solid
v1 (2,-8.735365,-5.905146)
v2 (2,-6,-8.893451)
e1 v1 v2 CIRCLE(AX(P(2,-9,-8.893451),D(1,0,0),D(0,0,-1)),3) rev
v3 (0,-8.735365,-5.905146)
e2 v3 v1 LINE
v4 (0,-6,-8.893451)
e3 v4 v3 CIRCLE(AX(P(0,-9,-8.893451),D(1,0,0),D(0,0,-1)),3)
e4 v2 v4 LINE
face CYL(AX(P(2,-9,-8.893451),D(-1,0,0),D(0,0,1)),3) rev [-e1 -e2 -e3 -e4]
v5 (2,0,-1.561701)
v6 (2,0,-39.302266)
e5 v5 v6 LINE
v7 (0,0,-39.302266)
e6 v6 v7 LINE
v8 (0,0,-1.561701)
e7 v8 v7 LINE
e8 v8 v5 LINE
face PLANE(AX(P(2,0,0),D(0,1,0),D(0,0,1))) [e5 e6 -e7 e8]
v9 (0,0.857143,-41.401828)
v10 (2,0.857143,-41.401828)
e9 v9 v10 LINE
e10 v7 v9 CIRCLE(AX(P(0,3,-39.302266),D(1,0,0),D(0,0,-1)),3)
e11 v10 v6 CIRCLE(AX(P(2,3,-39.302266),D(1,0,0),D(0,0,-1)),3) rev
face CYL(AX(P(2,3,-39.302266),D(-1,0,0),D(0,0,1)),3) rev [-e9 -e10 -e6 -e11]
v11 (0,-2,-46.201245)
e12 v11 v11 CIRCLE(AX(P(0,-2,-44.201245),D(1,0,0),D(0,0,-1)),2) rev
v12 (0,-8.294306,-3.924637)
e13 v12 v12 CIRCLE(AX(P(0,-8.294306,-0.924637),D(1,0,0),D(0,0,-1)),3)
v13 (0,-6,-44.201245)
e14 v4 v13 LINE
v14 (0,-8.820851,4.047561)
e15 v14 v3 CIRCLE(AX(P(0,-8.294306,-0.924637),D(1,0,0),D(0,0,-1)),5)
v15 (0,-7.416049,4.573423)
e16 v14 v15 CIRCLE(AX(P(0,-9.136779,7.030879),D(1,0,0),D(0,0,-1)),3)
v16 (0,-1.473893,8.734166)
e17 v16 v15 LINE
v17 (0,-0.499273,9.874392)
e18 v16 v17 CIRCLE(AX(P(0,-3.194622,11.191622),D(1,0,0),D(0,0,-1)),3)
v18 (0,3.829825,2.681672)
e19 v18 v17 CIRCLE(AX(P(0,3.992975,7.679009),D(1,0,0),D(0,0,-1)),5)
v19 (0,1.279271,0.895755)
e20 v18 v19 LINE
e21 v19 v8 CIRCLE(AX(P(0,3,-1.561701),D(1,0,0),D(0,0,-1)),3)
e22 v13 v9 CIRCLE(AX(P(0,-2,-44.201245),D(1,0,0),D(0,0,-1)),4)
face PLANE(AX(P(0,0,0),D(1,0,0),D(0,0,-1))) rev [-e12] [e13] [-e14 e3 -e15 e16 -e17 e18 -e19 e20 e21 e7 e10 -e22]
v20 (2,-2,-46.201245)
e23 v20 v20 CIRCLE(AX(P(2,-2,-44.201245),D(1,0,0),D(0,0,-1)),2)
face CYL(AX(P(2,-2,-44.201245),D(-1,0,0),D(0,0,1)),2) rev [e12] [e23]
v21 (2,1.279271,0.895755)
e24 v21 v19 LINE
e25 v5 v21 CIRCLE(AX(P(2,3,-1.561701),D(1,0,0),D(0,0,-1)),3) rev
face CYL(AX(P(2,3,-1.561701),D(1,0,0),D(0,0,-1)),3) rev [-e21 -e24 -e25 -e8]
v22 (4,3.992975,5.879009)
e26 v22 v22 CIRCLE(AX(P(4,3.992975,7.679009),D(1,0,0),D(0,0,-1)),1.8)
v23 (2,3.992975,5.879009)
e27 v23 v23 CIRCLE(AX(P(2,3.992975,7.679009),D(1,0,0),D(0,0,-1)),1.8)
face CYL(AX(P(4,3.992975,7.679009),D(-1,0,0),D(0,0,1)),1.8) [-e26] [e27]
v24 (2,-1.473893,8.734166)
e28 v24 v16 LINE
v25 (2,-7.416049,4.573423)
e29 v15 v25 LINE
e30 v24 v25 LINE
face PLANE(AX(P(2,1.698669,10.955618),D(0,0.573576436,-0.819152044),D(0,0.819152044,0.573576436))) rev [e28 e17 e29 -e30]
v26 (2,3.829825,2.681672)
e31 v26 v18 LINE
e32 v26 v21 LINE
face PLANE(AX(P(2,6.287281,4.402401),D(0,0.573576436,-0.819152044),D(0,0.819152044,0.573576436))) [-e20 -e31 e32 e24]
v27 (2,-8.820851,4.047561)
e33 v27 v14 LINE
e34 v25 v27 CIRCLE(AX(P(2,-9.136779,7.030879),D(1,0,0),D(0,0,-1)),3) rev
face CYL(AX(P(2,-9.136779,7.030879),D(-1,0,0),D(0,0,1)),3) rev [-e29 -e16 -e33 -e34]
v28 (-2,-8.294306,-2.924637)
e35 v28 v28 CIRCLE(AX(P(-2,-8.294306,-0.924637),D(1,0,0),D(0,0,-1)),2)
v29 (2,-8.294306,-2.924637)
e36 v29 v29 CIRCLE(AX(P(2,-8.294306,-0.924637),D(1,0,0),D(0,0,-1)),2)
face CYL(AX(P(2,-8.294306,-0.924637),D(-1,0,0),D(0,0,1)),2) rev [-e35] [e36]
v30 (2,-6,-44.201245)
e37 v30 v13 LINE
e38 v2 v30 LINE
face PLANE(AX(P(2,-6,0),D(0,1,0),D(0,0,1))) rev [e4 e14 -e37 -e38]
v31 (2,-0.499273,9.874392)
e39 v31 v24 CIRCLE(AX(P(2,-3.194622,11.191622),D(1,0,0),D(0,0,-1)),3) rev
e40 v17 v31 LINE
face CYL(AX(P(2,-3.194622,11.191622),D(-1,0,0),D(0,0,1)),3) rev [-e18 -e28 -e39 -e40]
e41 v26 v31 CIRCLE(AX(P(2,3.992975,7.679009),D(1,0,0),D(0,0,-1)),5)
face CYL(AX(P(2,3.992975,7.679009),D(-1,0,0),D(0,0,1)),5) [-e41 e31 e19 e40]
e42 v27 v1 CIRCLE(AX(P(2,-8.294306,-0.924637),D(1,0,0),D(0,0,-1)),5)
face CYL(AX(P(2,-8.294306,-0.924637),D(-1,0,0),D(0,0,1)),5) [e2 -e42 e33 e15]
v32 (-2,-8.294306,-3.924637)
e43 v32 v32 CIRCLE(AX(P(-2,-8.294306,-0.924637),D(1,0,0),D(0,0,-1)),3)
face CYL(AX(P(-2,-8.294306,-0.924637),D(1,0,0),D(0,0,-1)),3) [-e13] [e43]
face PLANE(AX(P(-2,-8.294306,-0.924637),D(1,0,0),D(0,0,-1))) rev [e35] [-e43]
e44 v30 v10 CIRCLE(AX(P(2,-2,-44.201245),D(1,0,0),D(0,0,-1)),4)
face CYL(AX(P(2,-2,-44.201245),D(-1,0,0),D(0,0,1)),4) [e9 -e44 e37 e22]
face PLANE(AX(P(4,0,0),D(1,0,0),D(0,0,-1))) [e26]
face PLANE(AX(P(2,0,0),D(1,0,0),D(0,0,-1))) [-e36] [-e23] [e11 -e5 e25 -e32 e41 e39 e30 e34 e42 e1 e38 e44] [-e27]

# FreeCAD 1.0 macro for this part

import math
import FreeCAD as App
import Part
import Sketcher
Q = App.Units.Quantity


def edges_at(feature, points):
    """Names of the edges that pass closest to the given points."""
    edges = feature.Shape.Edges
    near = lambda p: min(range(len(edges)), key=lambda i: edges[i].distToShape(Part.Vertex(*p))[0])
    return sorted({f"Edge{near(p) + 1}" for p in points})

doc = App.newDocument("Part")
body = doc.addObject("PartDesign::Body", "Body")

sketch1 = doc.addObject("Sketcher::SketchObject", "Sketch")
body.addObject(sketch1)
sketch1.AttachmentSupport = (doc.YZ_Plane, [""])
sketch1.MapMode = "FlatFace"
sketch1.addGeometry([
    Part.LineSegment(App.Vector(0, -40.74, 0), App.Vector(0, 0, 0)),
    Part.LineSegment(App.Vector(0, 0, 0), App.Vector(3.83, 2.68, 0)),
    Part.ArcOfCircle(Part.Circle(App.Vector(3.99, 7.68, 0), App.Vector(0, 0, 1), 5), math.radians(-91.87), math.radians(-90)),
    Part.ArcOfCircle(Part.Circle(App.Vector(3.99, 7.68, 0), App.Vector(0, 0, 1), 5), math.radians(-90), math.radians(162)),
    Part.LineSegment(App.Vector(-0.76, 9.23, 0), App.Vector(-8.13, 4.07, 0)),
    Part.ArcOfCircle(Part.Circle(App.Vector(-8.29, -0.92, 0), App.Vector(0, 0, 1), 5), math.radians(88), math.radians(270)),
    Part.ArcOfCircle(Part.Circle(App.Vector(-8.29, -0.92, 0), App.Vector(0, 0, 1), 5), math.radians(-90), math.radians(-63)),
    Part.LineSegment(App.Vector(-6, -5.37, 0), App.Vector(-6, -44.2, 0)),
    Part.ArcOfCircle(Part.Circle(App.Vector(-2, -44.2, 0), App.Vector(0, 0, 1), 4), math.radians(180), math.radians(270)),
    Part.ArcOfCircle(Part.Circle(App.Vector(-2, -44.2, 0), App.Vector(0, 0, 1), 4), math.radians(-90), math.radians(60)),
], False)
sketch1.addConstraint([
    Sketcher.Constraint("Coincident", 0, 2, 1, 1),
    Sketcher.Constraint("Coincident", 1, 2, 2, 1),
    Sketcher.Constraint("Tangent", 2, 2, 3, 1),
    Sketcher.Constraint("Coincident", 3, 2, 4, 1),
    Sketcher.Constraint("Coincident", 4, 2, 5, 1),
    Sketcher.Constraint("Tangent", 5, 2, 6, 1),
    Sketcher.Constraint("Coincident", 6, 2, 7, 1),
    Sketcher.Constraint("Tangent", 7, 2, 8, 1),
    Sketcher.Constraint("Tangent", 8, 2, 9, 1),
    Sketcher.Constraint("Coincident", 9, 2, 0, 1),
    Sketcher.Constraint("Vertical", 0),
    Sketcher.Constraint("Vertical", 7),
    Sketcher.Constraint("Coincident", 0, 2, -1, 1),
    Sketcher.Constraint("Equal", 2, 3),
    Sketcher.Constraint("Equal", 3, 5),
    Sketcher.Constraint("Equal", 5, 6),
    Sketcher.Constraint("Equal", 8, 9),
    Sketcher.Constraint("Parallel", 1, 4),
    Sketcher.Constraint("Vertical", 3, 3, 2, 2),
    Sketcher.Constraint("Vertical", 6, 3, 5, 2),
    Sketcher.Constraint("Vertical", 9, 3, 8, 2),
    Sketcher.Constraint("Radius", 2, Q("5.000001 mm")),
    Sketcher.Constraint("Radius", 8, Q("4 mm")),
    Sketcher.Constraint("Angle", 1, Q("35 deg")),
    Sketcher.Constraint("Distance", 4, Q("9 mm")),
    Sketcher.Constraint("DistanceX", 8, 3, -1, 1, Q("2 mm")),
    Sketcher.Constraint("DistanceY", 7, 2, 7, 1, Q("38.834068 mm")),
    Sketcher.Constraint("DistanceY", -1, 1, 4, 2, Q("4.0727 mm")),
    Sketcher.Constraint("DistanceY", 0, 1, 0, 2, Q("40.737144 mm")),
    Sketcher.Constraint("DistanceY", -1, 1, 2, 3, Q("7.679011 mm")),
    Sketcher.Constraint("DistanceX", 5, 3, 3, 3, Q("12.287281 mm")),
])
pad1 = doc.addObject("PartDesign::Pad", "Pad")
body.addObject(pad1)
pad1.Profile = sketch1
pad1.Length = 2

sketch2 = doc.addObject("Sketcher::SketchObject", "Sketch001")
body.addObject(sketch2)
sketch2.AttachmentSupport = (doc.YZ_Plane, [""])
sketch2.MapMode = "FlatFace"
sketch2.addGeometry(Part.Circle(App.Vector(-8.3, -0.9, 0), App.Vector(0, 0, 1), 3), False)
sketch2.addConstraint([
    Sketcher.Constraint("Diameter", 0, Q("6 mm")),
    Sketcher.Constraint("DistanceX", 0, 3, -1, 1, Q("8.294306 mm")),
    Sketcher.Constraint("DistanceY", 0, 3, -1, 1, Q("0.924637 mm")),
])
pad2 = doc.addObject("PartDesign::Pad", "Pad001")
body.addObject(pad2)
pad2.Profile = sketch2
pad2.Length = 2
pad2.Reversed = True

sketch3 = doc.addObject("Sketcher::SketchObject", "Sketch002")
body.addObject(sketch3)
sketch3.AttachmentSupport = (doc.YZ_Plane, [""])
sketch3.MapMode = "FlatFace"
sketch3.addGeometry([
    Part.Circle(App.Vector(4, 7.7, 0), App.Vector(0, 0, 1), 2),
    Part.Circle(App.Vector(-2, -44.2, 0), App.Vector(0, 0, 1), 2),
    Part.Circle(App.Vector(-8.3, -0.9, 0), App.Vector(0, 0, 1), 2),
], False)
sketch3.addConstraint([
    Sketcher.Constraint("Equal", 0, 1),
    Sketcher.Constraint("Equal", 1, 2),
    Sketcher.Constraint("Diameter", 0, Q("4 mm")),
    Sketcher.Constraint("DistanceX", 1, 3, -1, 1, Q("2 mm")),
    Sketcher.Constraint("DistanceY", -1, 1, 0, 3, Q("7.679009 mm")),
    Sketcher.Constraint("DistanceX", 2, 3, 0, 3, Q("12.287281 mm")),
    Sketcher.Constraint("DistanceY", 1, 3, 2, 3, Q("43.276608 mm")),
    Sketcher.Constraint("DistanceX", -1, 1, 0, 3, Q("3.992975 mm")),
    Sketcher.Constraint("DistanceY", 1, 3, -1, 1, Q("44.201245 mm")),
])
pocket1 = doc.addObject("PartDesign::Pocket", "Pocket")
body.addObject(pocket1)
pocket1.Profile = sketch3
pocket1.Type = "ThroughAll"
pocket1.Midplane = True
doc.recompute()

fillet = doc.addObject("PartDesign::Fillet", "Fillet")
body.addObject(fillet)
fillet.Base = (pocket1, edges_at(pocket1, [
    (1, -6, -5.367),
    (1, 0, 0),
    (1, 0, -40.737),
    (1, -0.759, 9.235),
    (1, -8.131, 4.073),
]))
fillet.Radius = 3

sketch4 = doc.addObject("Sketcher::SketchObject", "Sketch003")
body.addObject(sketch4)
sketch4.AttachmentSupport = (doc.YZ_Plane, [""])
sketch4.MapMode = "FlatFace"
sketch4.addGeometry(Part.Circle(App.Vector(4, 7.7, 0), App.Vector(0, 0, 1), 2), False)
sketch4.addConstraint([
    Sketcher.Constraint("Diameter", 0, Q("4 mm")),
    Sketcher.Constraint("DistanceY", -1, 1, 0, 3, Q("7.679009 mm")),
    Sketcher.Constraint("DistanceX", -1, 1, 0, 3, Q("3.992975 mm")),
])
pad3 = doc.addObject("PartDesign::Pad", "Pad002")
body.addObject(pad3)
pad3.Profile = sketch4
pad3.Length = 2

sketch5 = doc.addObject("Sketcher::SketchObject", "Sketch004")
body.addObject(sketch5)
sketch5.AttachmentSupport = (doc.YZ_Plane, [""])
sketch5.MapMode = "FlatFace"
sketch5.AttachmentOffset = App.Placement(App.Vector(0, 0, 2), App.Rotation())
sketch5.addGeometry(Part.Circle(App.Vector(4, 7.7, 0), App.Vector(0, 0, 1), 1.8), False)
sketch5.addConstraint([
    Sketcher.Constraint("Diameter", 0, Q("3.6 mm")),
    Sketcher.Constraint("DistanceY", -1, 1, 0, 3, Q("7.679009 mm")),
    Sketcher.Constraint("DistanceX", -1, 1, 0, 3, Q("3.992975 mm")),
])
pad4 = doc.addObject("PartDesign::Pad", "Pad003")
body.addObject(pad4)
pad4.Profile = sketch5
pad4.Length = 2

doc.recompute()
